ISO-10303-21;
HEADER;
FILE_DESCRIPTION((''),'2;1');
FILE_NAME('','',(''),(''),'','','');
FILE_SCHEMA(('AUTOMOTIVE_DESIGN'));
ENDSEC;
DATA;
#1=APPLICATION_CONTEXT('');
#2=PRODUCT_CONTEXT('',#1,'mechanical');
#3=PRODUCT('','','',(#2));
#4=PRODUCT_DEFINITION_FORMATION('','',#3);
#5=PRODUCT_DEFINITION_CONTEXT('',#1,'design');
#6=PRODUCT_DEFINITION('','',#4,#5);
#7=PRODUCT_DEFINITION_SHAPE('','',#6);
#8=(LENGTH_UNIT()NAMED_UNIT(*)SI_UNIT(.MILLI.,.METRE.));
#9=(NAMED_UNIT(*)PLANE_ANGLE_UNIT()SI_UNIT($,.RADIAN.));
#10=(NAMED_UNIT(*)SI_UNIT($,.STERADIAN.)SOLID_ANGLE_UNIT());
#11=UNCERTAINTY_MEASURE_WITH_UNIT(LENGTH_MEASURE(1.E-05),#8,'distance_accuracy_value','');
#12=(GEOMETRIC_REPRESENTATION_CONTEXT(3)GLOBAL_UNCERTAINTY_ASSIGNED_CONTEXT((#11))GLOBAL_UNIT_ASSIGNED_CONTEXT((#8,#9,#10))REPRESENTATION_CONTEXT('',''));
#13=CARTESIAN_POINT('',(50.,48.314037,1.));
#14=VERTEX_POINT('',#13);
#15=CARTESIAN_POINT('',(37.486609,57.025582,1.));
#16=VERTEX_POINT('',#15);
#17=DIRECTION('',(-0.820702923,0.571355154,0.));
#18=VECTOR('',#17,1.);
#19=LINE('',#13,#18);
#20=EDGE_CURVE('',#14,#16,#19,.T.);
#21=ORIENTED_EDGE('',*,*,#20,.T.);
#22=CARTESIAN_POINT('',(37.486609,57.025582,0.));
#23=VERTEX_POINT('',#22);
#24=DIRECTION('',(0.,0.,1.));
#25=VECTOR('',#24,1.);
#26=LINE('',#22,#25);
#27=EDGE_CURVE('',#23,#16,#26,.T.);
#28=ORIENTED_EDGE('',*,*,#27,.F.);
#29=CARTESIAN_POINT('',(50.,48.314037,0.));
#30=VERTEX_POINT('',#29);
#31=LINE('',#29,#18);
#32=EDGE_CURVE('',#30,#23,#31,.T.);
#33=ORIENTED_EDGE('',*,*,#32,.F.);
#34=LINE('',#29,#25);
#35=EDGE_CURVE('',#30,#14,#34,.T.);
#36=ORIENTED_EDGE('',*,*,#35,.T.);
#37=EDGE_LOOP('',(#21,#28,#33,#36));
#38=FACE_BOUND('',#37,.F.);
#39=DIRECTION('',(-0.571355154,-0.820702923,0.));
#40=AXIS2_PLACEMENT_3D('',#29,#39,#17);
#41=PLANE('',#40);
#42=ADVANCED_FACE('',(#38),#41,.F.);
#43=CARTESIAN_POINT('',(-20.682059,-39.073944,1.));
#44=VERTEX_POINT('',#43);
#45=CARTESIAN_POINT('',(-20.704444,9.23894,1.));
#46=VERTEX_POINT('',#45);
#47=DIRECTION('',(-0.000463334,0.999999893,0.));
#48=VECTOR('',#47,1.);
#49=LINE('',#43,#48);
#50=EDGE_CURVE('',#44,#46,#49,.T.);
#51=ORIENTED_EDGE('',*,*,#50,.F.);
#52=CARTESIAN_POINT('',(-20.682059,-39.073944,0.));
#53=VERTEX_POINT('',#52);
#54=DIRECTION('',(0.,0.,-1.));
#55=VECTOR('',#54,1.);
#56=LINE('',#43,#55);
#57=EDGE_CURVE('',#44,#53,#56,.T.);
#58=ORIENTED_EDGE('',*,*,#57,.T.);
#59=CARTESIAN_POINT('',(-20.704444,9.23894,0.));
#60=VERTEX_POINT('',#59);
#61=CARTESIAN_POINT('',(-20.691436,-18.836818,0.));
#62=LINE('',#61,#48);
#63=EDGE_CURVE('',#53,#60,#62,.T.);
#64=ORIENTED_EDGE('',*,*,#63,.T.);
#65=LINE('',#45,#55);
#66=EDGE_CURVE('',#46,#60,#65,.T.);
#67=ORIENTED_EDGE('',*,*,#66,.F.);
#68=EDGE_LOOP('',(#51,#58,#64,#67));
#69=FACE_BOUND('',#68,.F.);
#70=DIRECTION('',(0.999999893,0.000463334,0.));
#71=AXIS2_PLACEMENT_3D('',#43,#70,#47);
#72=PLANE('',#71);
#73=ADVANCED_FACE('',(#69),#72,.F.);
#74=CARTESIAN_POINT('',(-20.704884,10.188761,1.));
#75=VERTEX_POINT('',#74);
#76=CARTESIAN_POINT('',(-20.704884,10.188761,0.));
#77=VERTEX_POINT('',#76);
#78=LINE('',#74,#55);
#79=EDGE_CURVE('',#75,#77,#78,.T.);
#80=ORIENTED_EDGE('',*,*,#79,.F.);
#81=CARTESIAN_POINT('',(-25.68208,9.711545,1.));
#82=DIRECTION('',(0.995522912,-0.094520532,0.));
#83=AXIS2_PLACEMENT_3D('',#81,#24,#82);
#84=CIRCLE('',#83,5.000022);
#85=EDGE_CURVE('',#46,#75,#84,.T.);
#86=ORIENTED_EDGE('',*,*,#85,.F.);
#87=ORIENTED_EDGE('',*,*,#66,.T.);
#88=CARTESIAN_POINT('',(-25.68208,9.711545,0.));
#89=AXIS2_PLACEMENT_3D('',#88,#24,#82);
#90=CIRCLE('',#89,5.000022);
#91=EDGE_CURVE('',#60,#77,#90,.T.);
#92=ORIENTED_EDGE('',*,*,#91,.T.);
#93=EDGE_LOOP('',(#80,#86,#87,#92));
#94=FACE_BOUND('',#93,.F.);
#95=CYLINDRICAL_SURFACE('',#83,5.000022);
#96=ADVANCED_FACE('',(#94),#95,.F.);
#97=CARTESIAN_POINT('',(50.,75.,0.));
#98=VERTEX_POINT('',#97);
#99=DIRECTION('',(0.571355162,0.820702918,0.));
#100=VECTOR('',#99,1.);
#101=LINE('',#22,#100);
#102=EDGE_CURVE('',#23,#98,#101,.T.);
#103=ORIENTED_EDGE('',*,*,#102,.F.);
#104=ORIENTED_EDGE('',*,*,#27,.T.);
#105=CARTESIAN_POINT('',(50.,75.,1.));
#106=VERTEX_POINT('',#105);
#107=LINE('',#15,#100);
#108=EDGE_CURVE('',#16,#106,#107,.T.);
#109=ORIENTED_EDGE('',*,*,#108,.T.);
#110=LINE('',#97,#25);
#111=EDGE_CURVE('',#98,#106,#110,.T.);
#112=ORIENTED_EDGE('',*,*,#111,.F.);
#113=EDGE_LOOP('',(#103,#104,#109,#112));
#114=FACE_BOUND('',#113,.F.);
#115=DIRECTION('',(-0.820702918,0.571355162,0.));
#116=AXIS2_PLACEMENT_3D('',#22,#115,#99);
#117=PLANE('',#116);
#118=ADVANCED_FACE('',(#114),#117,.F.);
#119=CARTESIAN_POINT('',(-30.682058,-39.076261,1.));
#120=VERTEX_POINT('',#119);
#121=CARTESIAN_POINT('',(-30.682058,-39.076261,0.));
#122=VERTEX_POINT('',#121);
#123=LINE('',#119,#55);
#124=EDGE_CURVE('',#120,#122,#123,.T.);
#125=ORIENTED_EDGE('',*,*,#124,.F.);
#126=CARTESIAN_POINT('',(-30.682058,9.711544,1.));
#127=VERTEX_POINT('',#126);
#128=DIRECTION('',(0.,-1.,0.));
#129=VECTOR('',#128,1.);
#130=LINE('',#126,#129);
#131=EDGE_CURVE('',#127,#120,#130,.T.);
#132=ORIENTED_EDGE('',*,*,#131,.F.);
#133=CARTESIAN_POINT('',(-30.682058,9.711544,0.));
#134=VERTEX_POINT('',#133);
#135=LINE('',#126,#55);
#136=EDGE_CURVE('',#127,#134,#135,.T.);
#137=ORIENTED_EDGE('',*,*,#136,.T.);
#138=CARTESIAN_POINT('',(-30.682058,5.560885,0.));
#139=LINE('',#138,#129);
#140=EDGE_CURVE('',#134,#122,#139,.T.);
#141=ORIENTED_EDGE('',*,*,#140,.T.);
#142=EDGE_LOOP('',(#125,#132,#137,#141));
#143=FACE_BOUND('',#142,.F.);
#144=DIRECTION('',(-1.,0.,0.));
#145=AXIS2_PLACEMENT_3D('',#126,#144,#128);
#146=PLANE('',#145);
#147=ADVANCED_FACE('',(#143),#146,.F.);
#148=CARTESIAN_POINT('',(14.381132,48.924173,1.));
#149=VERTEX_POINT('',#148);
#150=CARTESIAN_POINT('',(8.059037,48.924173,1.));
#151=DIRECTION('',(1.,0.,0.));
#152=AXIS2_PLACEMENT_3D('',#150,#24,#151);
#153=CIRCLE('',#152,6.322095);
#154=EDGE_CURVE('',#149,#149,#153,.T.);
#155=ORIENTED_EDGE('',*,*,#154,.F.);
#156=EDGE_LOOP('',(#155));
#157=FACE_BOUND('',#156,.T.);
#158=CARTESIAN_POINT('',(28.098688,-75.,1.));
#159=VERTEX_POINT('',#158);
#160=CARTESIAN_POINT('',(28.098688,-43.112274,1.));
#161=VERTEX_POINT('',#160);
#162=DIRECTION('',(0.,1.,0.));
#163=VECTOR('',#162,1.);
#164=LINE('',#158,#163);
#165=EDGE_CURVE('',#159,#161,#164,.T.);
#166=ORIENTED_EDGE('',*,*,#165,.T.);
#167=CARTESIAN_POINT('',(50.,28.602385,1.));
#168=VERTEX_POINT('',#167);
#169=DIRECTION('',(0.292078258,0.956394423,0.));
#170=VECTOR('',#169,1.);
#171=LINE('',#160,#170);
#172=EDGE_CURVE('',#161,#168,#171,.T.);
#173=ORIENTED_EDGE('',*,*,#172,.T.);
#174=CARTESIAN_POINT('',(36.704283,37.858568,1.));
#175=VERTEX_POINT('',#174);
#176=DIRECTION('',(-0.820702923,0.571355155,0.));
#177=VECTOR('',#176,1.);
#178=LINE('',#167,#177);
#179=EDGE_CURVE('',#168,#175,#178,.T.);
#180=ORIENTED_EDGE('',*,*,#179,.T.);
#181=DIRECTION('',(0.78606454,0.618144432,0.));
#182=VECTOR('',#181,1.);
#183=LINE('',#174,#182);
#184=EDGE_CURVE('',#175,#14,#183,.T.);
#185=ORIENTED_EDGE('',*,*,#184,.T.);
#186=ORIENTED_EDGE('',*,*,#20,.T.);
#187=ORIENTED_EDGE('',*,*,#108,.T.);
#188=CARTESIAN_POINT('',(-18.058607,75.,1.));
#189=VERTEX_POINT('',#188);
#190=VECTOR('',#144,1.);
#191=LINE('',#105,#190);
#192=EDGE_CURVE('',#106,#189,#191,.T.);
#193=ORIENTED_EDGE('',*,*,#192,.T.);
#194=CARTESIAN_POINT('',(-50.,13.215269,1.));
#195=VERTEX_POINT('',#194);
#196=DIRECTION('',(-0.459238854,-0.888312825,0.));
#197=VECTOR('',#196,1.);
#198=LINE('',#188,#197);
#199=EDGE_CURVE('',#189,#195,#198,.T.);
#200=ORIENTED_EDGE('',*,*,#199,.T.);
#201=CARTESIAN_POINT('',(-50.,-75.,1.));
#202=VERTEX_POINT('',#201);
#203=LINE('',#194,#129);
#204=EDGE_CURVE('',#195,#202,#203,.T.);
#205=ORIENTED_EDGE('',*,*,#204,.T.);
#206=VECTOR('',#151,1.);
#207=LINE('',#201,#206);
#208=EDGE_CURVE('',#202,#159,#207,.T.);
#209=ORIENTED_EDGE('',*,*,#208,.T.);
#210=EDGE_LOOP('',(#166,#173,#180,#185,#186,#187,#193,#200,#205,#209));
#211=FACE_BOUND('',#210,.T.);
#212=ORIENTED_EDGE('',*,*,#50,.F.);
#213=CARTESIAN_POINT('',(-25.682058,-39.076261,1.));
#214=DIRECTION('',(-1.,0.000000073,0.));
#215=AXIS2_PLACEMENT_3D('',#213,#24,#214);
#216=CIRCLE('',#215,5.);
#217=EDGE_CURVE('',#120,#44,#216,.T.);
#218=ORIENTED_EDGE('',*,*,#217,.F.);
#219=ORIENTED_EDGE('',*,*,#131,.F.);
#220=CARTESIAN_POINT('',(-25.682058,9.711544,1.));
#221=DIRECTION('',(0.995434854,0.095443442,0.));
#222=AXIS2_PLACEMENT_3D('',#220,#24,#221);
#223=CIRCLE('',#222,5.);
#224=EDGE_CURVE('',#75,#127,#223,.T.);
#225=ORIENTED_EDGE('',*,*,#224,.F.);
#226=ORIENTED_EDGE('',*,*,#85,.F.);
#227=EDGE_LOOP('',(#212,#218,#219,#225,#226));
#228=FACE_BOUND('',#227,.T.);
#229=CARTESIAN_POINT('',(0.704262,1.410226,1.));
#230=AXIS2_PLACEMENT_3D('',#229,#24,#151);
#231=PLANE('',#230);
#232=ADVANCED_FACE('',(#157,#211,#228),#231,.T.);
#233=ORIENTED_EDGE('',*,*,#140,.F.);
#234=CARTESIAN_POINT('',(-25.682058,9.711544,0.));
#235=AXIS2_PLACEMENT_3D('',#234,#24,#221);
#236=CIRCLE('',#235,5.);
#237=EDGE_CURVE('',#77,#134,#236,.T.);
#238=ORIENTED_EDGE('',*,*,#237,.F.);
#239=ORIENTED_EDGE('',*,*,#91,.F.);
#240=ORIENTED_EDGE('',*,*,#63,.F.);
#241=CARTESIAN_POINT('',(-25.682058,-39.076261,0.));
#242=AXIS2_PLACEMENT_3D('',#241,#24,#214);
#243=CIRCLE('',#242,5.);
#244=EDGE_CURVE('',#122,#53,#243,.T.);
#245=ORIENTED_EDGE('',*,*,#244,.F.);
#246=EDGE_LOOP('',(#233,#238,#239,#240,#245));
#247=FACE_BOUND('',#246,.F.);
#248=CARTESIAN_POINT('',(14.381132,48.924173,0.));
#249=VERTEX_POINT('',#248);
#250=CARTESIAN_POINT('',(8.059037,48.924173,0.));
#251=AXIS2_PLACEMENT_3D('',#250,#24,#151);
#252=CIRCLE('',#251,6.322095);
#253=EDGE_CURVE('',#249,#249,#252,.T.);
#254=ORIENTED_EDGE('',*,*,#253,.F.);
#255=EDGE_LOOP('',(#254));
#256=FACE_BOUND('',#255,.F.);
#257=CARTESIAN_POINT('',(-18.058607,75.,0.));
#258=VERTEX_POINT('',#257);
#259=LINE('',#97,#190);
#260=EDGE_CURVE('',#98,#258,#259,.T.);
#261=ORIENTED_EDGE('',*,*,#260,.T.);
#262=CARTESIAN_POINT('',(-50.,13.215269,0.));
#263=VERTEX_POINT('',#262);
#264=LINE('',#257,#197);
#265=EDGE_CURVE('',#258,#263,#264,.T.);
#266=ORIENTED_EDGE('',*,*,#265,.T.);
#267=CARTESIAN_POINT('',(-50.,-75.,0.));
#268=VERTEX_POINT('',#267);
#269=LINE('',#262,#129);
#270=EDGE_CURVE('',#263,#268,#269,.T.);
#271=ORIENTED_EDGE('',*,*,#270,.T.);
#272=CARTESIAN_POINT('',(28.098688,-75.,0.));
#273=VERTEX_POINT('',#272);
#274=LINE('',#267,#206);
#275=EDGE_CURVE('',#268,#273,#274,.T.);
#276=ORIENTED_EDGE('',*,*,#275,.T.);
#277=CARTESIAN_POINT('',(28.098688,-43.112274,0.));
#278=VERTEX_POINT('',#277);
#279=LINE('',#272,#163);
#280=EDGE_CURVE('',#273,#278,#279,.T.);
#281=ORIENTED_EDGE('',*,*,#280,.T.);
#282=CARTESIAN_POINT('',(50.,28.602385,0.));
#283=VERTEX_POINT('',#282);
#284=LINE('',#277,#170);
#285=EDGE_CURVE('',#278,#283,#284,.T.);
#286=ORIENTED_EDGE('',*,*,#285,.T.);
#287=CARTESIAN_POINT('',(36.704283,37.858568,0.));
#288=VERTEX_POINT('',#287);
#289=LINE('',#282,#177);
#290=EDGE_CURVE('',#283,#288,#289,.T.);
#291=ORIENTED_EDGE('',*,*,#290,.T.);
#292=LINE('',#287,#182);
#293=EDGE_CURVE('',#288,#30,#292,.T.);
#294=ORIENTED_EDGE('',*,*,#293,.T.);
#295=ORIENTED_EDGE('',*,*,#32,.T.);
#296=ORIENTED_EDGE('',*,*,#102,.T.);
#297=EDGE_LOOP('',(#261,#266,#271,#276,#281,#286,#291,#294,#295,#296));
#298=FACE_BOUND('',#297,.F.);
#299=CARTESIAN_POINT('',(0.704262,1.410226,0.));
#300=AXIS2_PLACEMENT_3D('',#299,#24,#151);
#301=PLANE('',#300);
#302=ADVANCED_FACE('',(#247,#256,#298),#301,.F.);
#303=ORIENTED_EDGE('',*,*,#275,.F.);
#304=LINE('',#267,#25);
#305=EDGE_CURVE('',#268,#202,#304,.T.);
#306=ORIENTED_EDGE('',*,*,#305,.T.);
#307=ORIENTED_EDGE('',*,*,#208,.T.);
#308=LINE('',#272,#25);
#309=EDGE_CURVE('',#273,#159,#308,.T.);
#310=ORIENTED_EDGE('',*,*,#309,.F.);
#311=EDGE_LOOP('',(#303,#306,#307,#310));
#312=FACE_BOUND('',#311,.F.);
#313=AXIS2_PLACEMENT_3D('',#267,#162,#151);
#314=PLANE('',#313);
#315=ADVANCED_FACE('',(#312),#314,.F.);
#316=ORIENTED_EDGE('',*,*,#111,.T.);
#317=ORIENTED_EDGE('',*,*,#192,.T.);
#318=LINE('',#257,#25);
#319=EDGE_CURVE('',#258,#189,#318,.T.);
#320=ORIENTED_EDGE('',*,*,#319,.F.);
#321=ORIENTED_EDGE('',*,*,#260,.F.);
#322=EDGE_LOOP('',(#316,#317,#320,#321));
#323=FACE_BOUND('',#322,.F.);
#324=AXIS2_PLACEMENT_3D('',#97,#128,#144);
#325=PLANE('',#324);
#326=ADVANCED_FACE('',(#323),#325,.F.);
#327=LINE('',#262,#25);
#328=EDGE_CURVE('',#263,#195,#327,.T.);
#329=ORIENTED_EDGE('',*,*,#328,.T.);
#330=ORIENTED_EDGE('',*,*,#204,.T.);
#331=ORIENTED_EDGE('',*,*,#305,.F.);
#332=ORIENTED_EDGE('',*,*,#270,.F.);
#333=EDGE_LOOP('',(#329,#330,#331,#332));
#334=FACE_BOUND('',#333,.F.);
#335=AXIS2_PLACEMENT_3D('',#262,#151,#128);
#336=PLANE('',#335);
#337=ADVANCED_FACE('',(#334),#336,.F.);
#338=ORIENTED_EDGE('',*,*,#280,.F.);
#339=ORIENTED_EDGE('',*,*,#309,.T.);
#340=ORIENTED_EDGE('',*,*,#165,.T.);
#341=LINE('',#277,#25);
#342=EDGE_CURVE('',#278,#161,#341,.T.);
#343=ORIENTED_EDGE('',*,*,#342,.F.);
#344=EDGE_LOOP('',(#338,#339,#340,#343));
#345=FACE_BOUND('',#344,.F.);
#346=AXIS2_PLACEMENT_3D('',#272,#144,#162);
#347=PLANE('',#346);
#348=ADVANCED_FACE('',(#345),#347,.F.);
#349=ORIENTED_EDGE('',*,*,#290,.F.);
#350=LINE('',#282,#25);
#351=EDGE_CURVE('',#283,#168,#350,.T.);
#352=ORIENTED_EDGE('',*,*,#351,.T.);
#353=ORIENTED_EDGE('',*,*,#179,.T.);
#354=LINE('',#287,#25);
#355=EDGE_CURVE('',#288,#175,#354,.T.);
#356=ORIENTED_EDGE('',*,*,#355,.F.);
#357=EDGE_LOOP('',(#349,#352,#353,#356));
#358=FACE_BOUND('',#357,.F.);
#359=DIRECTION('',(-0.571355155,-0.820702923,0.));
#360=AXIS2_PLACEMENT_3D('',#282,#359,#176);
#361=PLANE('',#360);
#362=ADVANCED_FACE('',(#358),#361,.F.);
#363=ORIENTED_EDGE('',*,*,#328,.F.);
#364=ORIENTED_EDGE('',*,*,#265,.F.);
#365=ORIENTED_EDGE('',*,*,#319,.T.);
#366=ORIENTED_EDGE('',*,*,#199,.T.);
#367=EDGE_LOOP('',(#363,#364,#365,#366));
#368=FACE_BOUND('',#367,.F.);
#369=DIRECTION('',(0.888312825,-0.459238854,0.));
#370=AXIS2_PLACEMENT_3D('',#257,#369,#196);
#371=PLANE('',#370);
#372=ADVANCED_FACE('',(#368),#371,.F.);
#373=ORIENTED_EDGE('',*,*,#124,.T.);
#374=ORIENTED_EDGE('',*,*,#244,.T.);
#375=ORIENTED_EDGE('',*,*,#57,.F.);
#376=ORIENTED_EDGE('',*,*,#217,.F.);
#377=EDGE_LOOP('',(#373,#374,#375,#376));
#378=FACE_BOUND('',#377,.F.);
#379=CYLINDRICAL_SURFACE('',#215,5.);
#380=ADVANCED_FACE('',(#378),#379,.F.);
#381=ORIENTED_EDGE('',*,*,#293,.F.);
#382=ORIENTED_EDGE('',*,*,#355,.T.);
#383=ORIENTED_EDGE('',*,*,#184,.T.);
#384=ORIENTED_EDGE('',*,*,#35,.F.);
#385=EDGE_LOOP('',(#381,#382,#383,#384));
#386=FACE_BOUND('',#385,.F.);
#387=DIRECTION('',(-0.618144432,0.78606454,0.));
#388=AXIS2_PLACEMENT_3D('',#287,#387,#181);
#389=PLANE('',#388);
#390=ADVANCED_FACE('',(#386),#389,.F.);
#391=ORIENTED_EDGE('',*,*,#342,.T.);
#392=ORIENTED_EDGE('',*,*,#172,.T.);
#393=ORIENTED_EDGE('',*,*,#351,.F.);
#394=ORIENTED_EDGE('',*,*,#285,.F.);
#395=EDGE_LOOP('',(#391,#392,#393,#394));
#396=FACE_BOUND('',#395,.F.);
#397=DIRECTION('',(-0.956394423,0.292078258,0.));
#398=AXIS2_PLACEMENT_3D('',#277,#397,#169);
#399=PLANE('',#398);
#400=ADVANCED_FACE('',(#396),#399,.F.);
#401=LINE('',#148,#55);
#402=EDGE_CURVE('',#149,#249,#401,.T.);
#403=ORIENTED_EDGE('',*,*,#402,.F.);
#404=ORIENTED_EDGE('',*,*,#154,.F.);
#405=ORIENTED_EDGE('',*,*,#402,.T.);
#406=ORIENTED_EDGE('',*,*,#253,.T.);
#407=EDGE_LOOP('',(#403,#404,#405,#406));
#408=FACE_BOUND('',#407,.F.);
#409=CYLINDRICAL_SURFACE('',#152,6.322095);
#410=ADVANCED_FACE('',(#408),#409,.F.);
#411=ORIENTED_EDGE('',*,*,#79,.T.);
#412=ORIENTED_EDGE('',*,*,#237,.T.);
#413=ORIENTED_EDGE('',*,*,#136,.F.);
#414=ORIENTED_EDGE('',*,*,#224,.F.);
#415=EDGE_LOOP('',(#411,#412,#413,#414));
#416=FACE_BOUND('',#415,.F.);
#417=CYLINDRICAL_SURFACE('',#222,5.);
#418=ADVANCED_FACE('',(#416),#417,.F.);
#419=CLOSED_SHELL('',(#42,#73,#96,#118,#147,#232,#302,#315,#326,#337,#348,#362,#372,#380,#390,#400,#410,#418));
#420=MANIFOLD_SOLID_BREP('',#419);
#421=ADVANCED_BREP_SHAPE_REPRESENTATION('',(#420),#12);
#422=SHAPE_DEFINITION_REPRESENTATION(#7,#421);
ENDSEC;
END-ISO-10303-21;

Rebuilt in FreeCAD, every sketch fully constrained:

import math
import FreeCAD as App
import Part
import Sketcher
from FreeCAD import Vector

doc = App.newDocument("Part")
body = doc.addObject("PartDesign::Body", "Body")

# Sketch on XY plane
sketch1 = doc.addObject("Sketcher::SketchObject", "Sketch")
body.addObject(sketch1)
sketch1.AttachmentSupport = (doc.XY_Plane, [""])
sketch1.MapMode = "FlatFace"
sketch1.addGeometry([
    Part.LineSegment(Vector(50, 75, 0), Vector(-18, 75, 0)),  # 0
    Part.LineSegment(Vector(-18, 75, 0), Vector(-50, 13, 0)),  # 1
    Part.LineSegment(Vector(-50, 13, 0), Vector(-50, -75, 0)),  # 2
    Part.LineSegment(Vector(-50, -75, 0), Vector(28, -75, 0)),  # 3
    Part.LineSegment(Vector(28, -75, 0), Vector(28, -43, 0)),  # 4
    Part.LineSegment(Vector(28, -43, 0), Vector(50, 29, 0)),  # 5
    Part.LineSegment(Vector(50, 29, 0), Vector(37, 38, 0)),  # 6
    Part.LineSegment(Vector(37, 38, 0), Vector(50, 48, 0)),  # 7
    Part.LineSegment(Vector(50, 48, 0), Vector(37, 57, 0)),  # 8
    Part.LineSegment(Vector(37, 57, 0), Vector(50, 75, 0)),  # 9
], False)
sketch1.addConstraint([
    Sketcher.Constraint("Coincident", 0, 2, 1, 1),
    Sketcher.Constraint("Coincident", 1, 2, 2, 1),
    Sketcher.Constraint("Coincident", 2, 2, 3, 1),
    Sketcher.Constraint("Coincident", 3, 2, 4, 1),
    Sketcher.Constraint("Coincident", 4, 2, 5, 1),
    Sketcher.Constraint("Coincident", 5, 2, 6, 1),
    Sketcher.Constraint("Coincident", 6, 2, 7, 1),
    Sketcher.Constraint("Coincident", 7, 2, 8, 1),
    Sketcher.Constraint("Coincident", 8, 2, 9, 1),
    Sketcher.Constraint("Coincident", 9, 2, 0, 1),
    Sketcher.Constraint("Horizontal", 0),
    Sketcher.Constraint("Vertical", 2),
    Sketcher.Constraint("Horizontal", 3),
    Sketcher.Constraint("Vertical", 4),
    Sketcher.Constraint("Symmetric", 2, 2, 9, 2, -1, 1),
    Sketcher.Constraint("Parallel", 6, 8),
    Sketcher.Constraint("Perpendicular", 8, 9),
    Sketcher.Constraint("Vertical", 5, 2, 7, 2),
    Sketcher.Constraint("Vertical", 7, 2, 9, 2),
    Sketcher.Constraint("DistanceY", -1, 1, 0, 2, 75.0),
    Sketcher.Constraint("DistanceX", 1, 2, -1, 1, 50.0),
    Sketcher.Constraint("Distance", 6, 16.200402),
    Sketcher.Constraint("DistanceY", 2, 2, 2, 1, 88.215269),
    Sketcher.Constraint("DistanceY", 1, 2, 6, 2, 24.643299),
    Sketcher.Constraint("Distance", 7, 16.914282),
    Sketcher.Constraint("DistanceX", 0, 2, 0, 1, 68.058607),
    Sketcher.Constraint("DistanceX", 3, 1, 3, 2, 78.098688),
    Sketcher.Constraint("DistanceY", 4, 1, 4, 2, 31.887726),
    Sketcher.Constraint("DistanceX", -1, 1, 8, 2, 37.486609),
])
pad1 = doc.addObject("PartDesign::Pad", "Pad")
body.addObject(pad1)
pad1.Profile = sketch1
pad1.Length = 1

# Sketch on XY plane
sketch2 = doc.addObject("Sketcher::SketchObject", "Sketch001")
body.addObject(sketch2)
sketch2.AttachmentSupport = (doc.XY_Plane, [""])
sketch2.MapMode = "FlatFace"
sketch2.AttachmentOffset = App.Placement(Vector(0, 0, 1), App.Rotation())
sketch2.addGeometry([
    Part.Circle(Vector(8.059037, 48.924173, 0), Vector(0, 0, 1), 6.322095),  # 0
    Part.ArcOfCircle(Part.Circle(Vector(-25.68208, 9.711545, 0), Vector(0, 0, 1), 5.000022), math.radians(-5.423724), math.radians(5.476808)),  # 1
    Part.ArcOfCircle(Part.Circle(Vector(-25.682058, 9.711544, 0), Vector(0, 0, 1), 5), math.radians(5.476843), math.radians(179.999998)),  # 2
    Part.LineSegment(Vector(-30.682058, 9.711544, 0), Vector(-30.682058, -39.076261, 0)),  # 3
    Part.ArcOfCircle(Part.Circle(Vector(-25.682058, -39.076261, 0), Vector(0, 0, 1), 5), math.radians(179.999996), math.radians(360.026555)),  # 4
    Part.LineSegment(Vector(-20.682059, -39.073944, 0), Vector(-20.704444, 9.23894, 0)),  # 5
], False)
sketch2.addConstraint([
    Sketcher.Constraint("Coincident", 1, 2, 2, 1),
    Sketcher.Constraint("Coincident", 2, 2, 3, 1),
    Sketcher.Constraint("Coincident", 3, 2, 4, 1),
    Sketcher.Constraint("Coincident", 4, 2, 5, 1),
    Sketcher.Constraint("Coincident", 5, 2, 1, 1),
    Sketcher.Constraint("Vertical", 3),
    Sketcher.Constraint("Radius", 2, 5.0),
    Sketcher.Constraint("Radius", 4, 5.0),
    Sketcher.Constraint("Diameter", 0, 12.64419),
    Sketcher.Constraint("Radius", 1, 5.000022),
    Sketcher.Constraint("Distance", 5, 48.312889),
    Sketcher.Constraint("DistanceY", 3, 2, 3, 1, 48.787805),
    Sketcher.Constraint("DistanceX", 1, 3, -1, 1, 25.68208),
    Sketcher.Constraint("DistanceX", 2, 3, -1, 1, 25.682058),
    Sketcher.Constraint("DistanceY", 4, 3, -1, 1, 39.076261),
    Sketcher.Constraint("DistanceY", -1, 1, 1, 2, 10.188761),
    Sketcher.Constraint("DistanceY", 3, 2, -1, 1, 39.076261),
    Sketcher.Constraint("DistanceY", -1, 1, 5, 2, 9.23894),
    Sketcher.Constraint("DistanceY", 1, 3, 0, 3, 39.212628),
    Sketcher.Constraint("DistanceX", 1, 2, 0, 3, 28.763921),
    Sketcher.Constraint("DistanceY", 1, 2, 0, 3, 38.735412),
])
pocket1 = doc.addObject("PartDesign::Pocket", "Pocket")
body.addObject(pocket1)
pocket1.Profile = sketch2
pocket1.Length = 25

doc.recompute()
